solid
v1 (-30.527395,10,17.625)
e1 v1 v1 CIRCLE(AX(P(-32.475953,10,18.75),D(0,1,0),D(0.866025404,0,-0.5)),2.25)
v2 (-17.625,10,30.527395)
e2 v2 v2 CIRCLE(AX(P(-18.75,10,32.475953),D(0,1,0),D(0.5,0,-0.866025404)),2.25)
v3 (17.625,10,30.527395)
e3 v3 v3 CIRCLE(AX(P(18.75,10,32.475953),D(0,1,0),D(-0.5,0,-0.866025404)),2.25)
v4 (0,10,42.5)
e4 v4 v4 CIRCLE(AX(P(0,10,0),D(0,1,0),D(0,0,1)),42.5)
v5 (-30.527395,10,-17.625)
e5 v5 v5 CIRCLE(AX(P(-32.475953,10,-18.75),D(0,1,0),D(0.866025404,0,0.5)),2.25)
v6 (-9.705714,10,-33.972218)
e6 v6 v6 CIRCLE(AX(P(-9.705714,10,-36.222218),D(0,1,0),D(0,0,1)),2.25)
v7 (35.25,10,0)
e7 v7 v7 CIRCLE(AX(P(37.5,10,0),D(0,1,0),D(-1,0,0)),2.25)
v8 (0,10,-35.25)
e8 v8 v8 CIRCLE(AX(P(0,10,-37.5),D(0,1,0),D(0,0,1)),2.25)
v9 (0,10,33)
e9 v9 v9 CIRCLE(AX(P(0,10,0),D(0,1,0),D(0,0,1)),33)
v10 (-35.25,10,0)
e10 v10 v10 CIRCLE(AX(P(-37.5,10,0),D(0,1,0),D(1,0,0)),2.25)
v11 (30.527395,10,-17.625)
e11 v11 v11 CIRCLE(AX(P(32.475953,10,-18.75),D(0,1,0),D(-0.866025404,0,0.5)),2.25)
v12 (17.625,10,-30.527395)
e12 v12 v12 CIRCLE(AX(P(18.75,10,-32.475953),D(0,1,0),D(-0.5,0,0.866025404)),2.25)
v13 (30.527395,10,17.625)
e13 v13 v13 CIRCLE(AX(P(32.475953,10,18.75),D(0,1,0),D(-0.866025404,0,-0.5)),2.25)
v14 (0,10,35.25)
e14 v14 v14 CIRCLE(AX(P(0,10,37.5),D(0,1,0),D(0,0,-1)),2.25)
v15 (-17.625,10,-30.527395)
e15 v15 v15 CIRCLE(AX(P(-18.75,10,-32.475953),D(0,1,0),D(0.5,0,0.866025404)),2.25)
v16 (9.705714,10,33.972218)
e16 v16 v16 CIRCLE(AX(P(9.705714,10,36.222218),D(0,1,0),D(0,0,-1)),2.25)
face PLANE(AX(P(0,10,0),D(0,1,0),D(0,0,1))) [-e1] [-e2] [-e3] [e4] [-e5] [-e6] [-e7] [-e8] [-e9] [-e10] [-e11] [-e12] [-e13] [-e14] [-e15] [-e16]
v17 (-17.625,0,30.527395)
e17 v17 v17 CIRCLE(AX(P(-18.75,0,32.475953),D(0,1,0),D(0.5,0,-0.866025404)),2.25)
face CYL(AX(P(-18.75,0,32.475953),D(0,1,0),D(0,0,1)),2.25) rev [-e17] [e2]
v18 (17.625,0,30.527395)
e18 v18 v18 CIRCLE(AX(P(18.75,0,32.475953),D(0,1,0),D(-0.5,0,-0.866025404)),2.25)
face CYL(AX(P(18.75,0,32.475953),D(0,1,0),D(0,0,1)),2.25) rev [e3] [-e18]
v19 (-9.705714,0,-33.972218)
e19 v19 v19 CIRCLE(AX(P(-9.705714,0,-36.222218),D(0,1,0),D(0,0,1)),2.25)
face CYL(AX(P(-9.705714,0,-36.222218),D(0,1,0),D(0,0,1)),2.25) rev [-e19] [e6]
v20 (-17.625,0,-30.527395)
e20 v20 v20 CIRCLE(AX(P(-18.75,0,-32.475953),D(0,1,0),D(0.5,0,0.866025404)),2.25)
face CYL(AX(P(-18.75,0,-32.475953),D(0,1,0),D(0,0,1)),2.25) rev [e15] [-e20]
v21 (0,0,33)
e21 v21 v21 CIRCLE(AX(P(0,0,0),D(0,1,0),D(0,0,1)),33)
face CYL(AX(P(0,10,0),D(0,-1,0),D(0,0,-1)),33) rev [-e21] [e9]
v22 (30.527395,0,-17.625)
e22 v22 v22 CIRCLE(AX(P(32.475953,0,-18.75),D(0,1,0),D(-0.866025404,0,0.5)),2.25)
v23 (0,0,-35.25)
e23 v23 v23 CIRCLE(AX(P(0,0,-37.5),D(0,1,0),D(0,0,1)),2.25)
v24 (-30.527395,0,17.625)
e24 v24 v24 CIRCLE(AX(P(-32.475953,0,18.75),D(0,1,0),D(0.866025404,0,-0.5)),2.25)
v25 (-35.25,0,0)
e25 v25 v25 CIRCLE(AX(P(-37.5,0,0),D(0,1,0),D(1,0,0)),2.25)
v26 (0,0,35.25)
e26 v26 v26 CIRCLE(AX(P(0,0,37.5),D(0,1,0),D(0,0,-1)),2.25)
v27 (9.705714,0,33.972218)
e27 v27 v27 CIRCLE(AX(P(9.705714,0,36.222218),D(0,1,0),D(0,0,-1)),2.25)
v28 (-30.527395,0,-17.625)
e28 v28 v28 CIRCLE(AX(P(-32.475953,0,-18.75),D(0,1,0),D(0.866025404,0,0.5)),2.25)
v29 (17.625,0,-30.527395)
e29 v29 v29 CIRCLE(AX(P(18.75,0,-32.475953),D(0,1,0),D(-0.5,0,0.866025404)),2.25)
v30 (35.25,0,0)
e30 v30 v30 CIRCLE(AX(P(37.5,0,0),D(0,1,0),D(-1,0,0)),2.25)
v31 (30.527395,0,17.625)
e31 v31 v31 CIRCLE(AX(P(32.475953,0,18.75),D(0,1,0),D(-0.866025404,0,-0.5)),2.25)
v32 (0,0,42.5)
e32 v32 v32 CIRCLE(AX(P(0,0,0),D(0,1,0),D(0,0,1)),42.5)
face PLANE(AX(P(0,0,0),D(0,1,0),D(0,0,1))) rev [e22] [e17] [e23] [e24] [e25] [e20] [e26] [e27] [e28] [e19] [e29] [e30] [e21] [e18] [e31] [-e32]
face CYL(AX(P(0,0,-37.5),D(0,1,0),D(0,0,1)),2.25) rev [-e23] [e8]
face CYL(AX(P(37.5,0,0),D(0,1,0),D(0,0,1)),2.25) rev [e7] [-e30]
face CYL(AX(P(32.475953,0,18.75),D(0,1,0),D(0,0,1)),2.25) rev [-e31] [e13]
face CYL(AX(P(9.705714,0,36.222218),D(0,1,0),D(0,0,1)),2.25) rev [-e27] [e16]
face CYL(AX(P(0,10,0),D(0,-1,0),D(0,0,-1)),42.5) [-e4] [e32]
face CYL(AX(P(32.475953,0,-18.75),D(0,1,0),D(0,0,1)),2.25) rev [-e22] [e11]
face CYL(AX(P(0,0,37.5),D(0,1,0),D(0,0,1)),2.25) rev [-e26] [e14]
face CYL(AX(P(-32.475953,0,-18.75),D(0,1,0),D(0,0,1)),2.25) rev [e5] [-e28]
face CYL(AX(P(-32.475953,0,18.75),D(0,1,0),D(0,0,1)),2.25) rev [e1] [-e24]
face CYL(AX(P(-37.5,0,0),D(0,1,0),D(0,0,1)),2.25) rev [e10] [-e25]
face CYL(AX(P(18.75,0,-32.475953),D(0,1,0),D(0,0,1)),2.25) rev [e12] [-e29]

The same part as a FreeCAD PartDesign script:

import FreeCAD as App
import Part
import Sketcher
from FreeCAD import Vector
Q = App.Units.Quantity

doc = App.newDocument("Part")
body = doc.addObject("PartDesign::Body", "Body")

# Sketch on XZ plane
sketch1 = body.newObject("Sketcher::SketchObject", "Sketch")
sketch1.AttachmentSupport = (doc.getObject("XZ_Plane"), [""])
sketch1.MapMode = "FlatFace"
sketch1.addGeometry(Part.Circle(Vector(0, 0, 0), Vector(0, 0, 1), 42), False)
sketch1.addGeometry(Part.Circle(Vector(0, 0, 0), Vector(0, 0, 1), 33), False)
sketch1.addConstraint(Sketcher.Constraint("Coincident", 0, 3, -1, 1))
sketch1.addConstraint(Sketcher.Constraint("Coincident", 1, 3, -1, 1))
sketch1.addConstraint(Sketcher.Constraint("Diameter", 0, Q("85 mm")))
sketch1.addConstraint(Sketcher.Constraint("Diameter", 1, Q("66 mm")))
pad1 = body.newObject("PartDesign::Pad", "Pad")
pad1.Profile = sketch1
pad1.Length = 10
pad1.Reversed = True

# Sketch on XZ plane
sketch2 = body.newObject("Sketcher::SketchObject", "Sketch001")
sketch2.AttachmentSupport = (doc.getObject("XZ_Plane"), [""])
sketch2.MapMode = "FlatFace"
sketch2.AttachmentOffset = App.Placement(Vector(0, 0, -10), App.Rotation())
sketch2.addGeometry(Part.Circle(Vector(0, -37.5, 0), Vector(0, 0, 1), 2.2), False)
sketch2.addConstraint(Sketcher.Constraint("PointOnObject", 0, 3, -2))
sketch2.addConstraint(Sketcher.Constraint("Diameter", 0, Q("4.5 mm")))
sketch2.addConstraint(Sketcher.Constraint("DistanceY", 0, 3, -1, 1, Q("37.5 mm")))
pocket1 = body.newObject("PartDesign::Pocket", "Pocket")
pocket1.Profile = sketch2
pocket1.Type = "ThroughAll"
pocket1.Reversed = True
doc.recompute()

polarpattern = body.newObject("PartDesign::PolarPattern", "PolarPattern")
polarpattern.Originals = [pocket1]
polarpattern.Axis = (doc.getObject("Y_Axis"), [""])
polarpattern.Angle = 360
polarpattern.Occurrences = 12
body.Tip = polarpattern

# Sketch on XZ plane
sketch3 = body.newObject("Sketcher::SketchObject", "Sketch002")
sketch3.AttachmentSupport = (doc.getObject("XZ_Plane"), [""])
sketch3.MapMode = "FlatFace"
sketch3.AttachmentOffset = App.Placement(Vector(0, 0, -10), App.Rotation())
sketch3.addGeometry(Part.Circle(Vector(-9.7, -36.2, 0), Vector(0, 0, 1), 2.2), False)
sketch3.addConstraint(Sketcher.Constraint("Diameter", 0, Q("4.5 mm")))
sketch3.addConstraint(Sketcher.Constraint("DistanceY", 0, 3, -1, 1, Q("36.222218 mm")))
sketch3.addConstraint(Sketcher.Constraint("DistanceX", 0, 3, -1, 1, Q("9.705714 mm")))
pocket2 = body.newObject("PartDesign::Pocket", "Pocket001")
pocket2.Profile = sketch3
pocket2.Type = "ThroughAll"
pocket2.Reversed = True
doc.recompute()

polarpattern2 = body.newObject("PartDesign::PolarPattern", "PolarPattern001")
polarpattern2.Originals = [pocket2]
polarpattern2.Axis = (doc.getObject("Y_Axis"), [""])
polarpattern2.Angle = 360
polarpattern2.Occurrences = 2
body.Tip = polarpattern2

doc.recompute()
